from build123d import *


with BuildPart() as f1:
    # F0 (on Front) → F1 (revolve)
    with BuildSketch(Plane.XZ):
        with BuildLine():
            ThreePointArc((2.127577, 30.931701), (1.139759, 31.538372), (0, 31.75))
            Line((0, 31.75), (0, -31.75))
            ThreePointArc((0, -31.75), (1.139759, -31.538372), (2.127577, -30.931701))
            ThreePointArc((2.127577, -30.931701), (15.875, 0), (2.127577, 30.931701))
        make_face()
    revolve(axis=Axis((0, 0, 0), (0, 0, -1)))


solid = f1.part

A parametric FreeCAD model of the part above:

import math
import FreeCAD as App
import Part
import Sketcher

V = App.Vector
Q = App.Units.Quantity

doc = App.newDocument("Part")
body = doc.addObject("PartDesign::Body", "Body")

sketch1 = body.newObject("Sketcher::SketchObject", "Sketch")
sketch1.AttachmentSupport = (doc.getObject("XZ_Plane"), [""])
sketch1.MapMode = "FlatFace"
sketch1.addGeometry([
    Part.ArcOfCircle(Part.Circle(V(0, 28.6, 0), V(0, 0, 1), 3.2), math.radians(48), math.radians(90)),
    Part.LineSegment(V(0, 31.8, 0), V(0, -31.8, 0)),
    Part.ArcOfCircle(Part.Circle(V(0, -28.6, 0), V(0, 0, 1), 3.2), math.radians(-90), math.radians(-48)),
    Part.ArcOfCircle(Part.Circle(V(-25.8, 0, 0), V(0, 0, 1), 41.7), math.radians(-48), math.radians(48)),
], False)
sketch1.addConstraint([
    Sketcher.Constraint("Coincident", 0, 2, 1, 1),
    Sketcher.Constraint("Coincident", 1, 2, 2, 1),
    Sketcher.Constraint("Tangent", 2, 2, 3, 1),
    Sketcher.Constraint("Tangent", 3, 2, 0, 1),
    Sketcher.Constraint("Vertical", 1),
    Sketcher.Constraint("Equal", 0, 2),
    Sketcher.Constraint("Symmetric", 0, 3, 2, 3, -1, 1),
    Sketcher.Constraint("PointOnObject", 0, 3, -2),
    Sketcher.Constraint("PointOnObject", 0, 2, -2),
    Sketcher.Constraint("DistanceY", 1, 2, 1, 1, Q("2.5 in")),
    Sketcher.Constraint("Radius", 0, Q("0.125 in")),
    Sketcher.Constraint("Radius", 3, Q("1.640625 in")),
])
revolution = body.newObject("PartDesign::Revolution", "Revolution")
revolution.Profile = sketch1
revolution.ReferenceAxis = (sketch1, ["V_Axis"])
revolution.Angle = 360

doc.recompute()
